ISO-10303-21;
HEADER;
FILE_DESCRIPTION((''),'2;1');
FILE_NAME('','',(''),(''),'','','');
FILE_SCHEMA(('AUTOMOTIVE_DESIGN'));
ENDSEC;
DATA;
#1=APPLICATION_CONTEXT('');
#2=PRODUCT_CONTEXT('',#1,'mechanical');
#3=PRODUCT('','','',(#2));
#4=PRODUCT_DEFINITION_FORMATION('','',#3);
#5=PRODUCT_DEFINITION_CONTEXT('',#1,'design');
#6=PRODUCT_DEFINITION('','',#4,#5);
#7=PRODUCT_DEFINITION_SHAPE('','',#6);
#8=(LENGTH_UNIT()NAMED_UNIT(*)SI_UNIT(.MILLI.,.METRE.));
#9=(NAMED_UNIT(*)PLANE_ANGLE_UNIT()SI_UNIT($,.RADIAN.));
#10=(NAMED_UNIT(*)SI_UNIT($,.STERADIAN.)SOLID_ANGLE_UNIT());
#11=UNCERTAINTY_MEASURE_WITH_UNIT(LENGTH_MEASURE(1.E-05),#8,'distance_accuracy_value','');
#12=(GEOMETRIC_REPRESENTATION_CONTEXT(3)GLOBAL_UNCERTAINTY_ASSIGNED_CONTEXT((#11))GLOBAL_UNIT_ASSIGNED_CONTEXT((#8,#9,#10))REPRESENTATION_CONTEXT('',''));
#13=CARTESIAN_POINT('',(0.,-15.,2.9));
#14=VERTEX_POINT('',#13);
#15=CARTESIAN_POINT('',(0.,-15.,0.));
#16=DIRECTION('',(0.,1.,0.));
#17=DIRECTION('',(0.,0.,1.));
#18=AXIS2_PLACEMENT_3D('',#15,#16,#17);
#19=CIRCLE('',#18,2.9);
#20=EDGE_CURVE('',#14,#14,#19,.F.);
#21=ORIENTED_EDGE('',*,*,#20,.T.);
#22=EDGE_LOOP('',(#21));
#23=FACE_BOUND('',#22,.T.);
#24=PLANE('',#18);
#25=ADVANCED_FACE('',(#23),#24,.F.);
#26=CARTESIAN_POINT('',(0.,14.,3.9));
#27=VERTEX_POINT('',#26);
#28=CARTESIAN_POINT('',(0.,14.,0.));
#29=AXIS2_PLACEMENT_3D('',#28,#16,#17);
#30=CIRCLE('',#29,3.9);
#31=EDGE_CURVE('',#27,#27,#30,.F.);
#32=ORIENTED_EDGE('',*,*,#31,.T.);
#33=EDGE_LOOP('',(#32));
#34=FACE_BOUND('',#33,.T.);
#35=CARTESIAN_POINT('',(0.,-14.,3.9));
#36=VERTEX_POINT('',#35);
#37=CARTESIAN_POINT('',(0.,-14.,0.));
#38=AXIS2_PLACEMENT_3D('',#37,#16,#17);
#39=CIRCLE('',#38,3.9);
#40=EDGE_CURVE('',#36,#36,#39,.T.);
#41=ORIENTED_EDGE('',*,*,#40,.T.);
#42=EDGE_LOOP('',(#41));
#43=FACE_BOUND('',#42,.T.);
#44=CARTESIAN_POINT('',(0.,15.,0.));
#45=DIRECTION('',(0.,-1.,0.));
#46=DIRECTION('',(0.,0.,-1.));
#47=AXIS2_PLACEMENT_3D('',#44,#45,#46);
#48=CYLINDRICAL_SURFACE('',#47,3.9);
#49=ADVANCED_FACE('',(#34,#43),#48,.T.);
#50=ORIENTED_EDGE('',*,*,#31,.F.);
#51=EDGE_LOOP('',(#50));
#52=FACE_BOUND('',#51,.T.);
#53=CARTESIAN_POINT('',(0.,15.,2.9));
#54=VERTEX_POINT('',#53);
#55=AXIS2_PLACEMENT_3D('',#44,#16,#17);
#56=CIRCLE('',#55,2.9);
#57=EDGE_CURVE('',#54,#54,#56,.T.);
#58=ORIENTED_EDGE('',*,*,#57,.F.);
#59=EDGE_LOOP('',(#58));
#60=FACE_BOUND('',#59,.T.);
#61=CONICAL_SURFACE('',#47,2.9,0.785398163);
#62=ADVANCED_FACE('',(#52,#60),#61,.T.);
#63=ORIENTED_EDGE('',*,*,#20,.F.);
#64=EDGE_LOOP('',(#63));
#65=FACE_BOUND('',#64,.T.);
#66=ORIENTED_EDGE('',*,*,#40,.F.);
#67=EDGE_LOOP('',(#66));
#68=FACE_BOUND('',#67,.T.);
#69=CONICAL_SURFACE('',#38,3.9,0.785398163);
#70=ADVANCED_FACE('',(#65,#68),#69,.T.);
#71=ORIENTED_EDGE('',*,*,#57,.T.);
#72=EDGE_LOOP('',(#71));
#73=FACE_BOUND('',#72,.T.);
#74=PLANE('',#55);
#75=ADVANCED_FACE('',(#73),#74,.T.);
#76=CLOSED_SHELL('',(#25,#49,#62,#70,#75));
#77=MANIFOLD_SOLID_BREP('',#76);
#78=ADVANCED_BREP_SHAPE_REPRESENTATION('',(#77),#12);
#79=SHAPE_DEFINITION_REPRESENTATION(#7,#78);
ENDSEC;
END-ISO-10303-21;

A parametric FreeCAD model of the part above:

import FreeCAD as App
import Part
import Sketcher
from FreeCAD import Vector


def edges_at(feature, points):
    """Names of the edges that pass closest to the given points."""
    edges = feature.Shape.Edges
    near = lambda p: min(range(len(edges)), key=lambda i: edges[i].distToShape(Part.Vertex(*p))[0])
    return sorted({f"Edge{near(p) + 1}" for p in points})

doc = App.newDocument("Part")
params = doc.addObject("Spreadsheet::Sheet", "Params")
for row, (alias, value) in enumerate([
    ("sketch1_diameter", "7.8 mm"),
    ("pad1_length", "30 mm"),
    ("chamfer_size", "1 mm"),
], start=1):
    params.set(f"A{row}", alias)
    params.set(f"B{row}", "=" + value)
    params.setAlias(f"B{row}", alias)

body = doc.addObject("PartDesign::Body", "Body")

# Sketch on XZ plane
sketch1 = doc.addObject("Sketcher::SketchObject", "Sketch")
body.addObject(sketch1)
sketch1.AttachmentSupport = (doc.XZ_Plane, [""])
sketch1.MapMode = "FlatFace"
sketch1.addGeometry(Part.Circle(Vector(0, 0, 0), Vector(0, 0, 1), 3.9), False)
sketch1.addConstraint(Sketcher.Constraint("Coincident", 0, 3, -1, 1))
sketch1.addConstraint(Sketcher.Constraint("Diameter", 0, 7.8))
sketch1.setExpression("Constraints[1]", "Params.sketch1_diameter")
pad1 = doc.addObject("PartDesign::Pad", "Pad")
body.addObject(pad1)
pad1.Profile = sketch1
pad1.setExpression("Length", "Params.pad1_length")
pad1.Midplane = True
doc.recompute()

chamfer = doc.addObject("PartDesign::Chamfer", "Chamfer")
body.addObject(chamfer)
chamfer.Base = (pad1, edges_at(pad1, [(-3.9, -15, 0), (-3.9, 15, 0)]))
chamfer.setExpression("Size", "Params.chamfer_size")

doc.recompute()
